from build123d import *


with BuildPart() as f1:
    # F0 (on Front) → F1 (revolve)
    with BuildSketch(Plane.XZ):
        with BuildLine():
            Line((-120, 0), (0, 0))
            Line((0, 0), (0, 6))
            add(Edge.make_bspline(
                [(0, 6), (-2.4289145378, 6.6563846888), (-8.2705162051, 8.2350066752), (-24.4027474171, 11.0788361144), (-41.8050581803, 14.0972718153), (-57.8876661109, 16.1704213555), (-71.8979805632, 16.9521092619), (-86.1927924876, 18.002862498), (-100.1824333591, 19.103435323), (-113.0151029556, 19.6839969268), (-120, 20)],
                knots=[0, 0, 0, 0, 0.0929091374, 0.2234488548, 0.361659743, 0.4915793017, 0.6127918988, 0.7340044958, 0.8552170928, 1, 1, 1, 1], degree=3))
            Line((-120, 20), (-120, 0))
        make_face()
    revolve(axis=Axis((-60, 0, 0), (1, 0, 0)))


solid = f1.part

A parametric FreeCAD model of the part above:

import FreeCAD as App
import Part
import Sketcher

doc = App.newDocument("Part")
body = doc.addObject("PartDesign::Body", "Body")

sketch1 = body.newObject("Sketcher::SketchObject", "Sketch")
sketch1.AttachmentSupport = (doc.getObject("XZ_Plane"), [""])
sketch1.MapMode = "FlatFace"
sketch1.addGeometry([
    Part.LineSegment(App.Vector(-120, 0, 0), App.Vector(0, 0, 0)),
    Part.LineSegment(App.Vector(0, 0, 0), App.Vector(0, 6, 0)),
    Part.BSplineCurve([App.Vector(0, 6, 0), App.Vector(-2.428915, 6.656385, 0), App.Vector(-8.270516, 8.235007, 0), App.Vector(-24.402747, 11.078836, 0), App.Vector(-41.805058, 14.097272, 0), App.Vector(-57.887666, 16.170421, 0), App.Vector(-71.897981, 16.952109, 0), App.Vector(-86.192792, 18.002862, 0), App.Vector(-100.182433, 19.103435, 0), App.Vector(-113.015103, 19.683997, 0), App.Vector(-120, 20, 0)], [4, 1, 1, 1, 1, 1, 1, 1, 4], [0, 0.092909137, 0.223448855, 0.361659743, 0.491579302, 0.612791899, 0.734004496, 0.855217093, 1], False, 3, [1, 1, 1, 1, 1, 1, 1, 1, 1, 1, 1], False),
    Part.LineSegment(App.Vector(-120, 20, 0), App.Vector(-120, 0, 0)),
], False)
sketch1.addConstraint([
    Sketcher.Constraint("Block", 2),
    Sketcher.Constraint("Coincident", 0, 2, 1, 1),
    Sketcher.Constraint("Coincident", 1, 2, 2, 1),
    Sketcher.Constraint("Coincident", 2, 2, 3, 1),
    Sketcher.Constraint("Coincident", 3, 2, 0, 1),
    Sketcher.Constraint("Horizontal", 0),
    Sketcher.Constraint("Vertical", 1),
    Sketcher.Constraint("Vertical", 3),
    Sketcher.Constraint("PointOnObject", 3, 2, -1),
])
revolution = body.newObject("PartDesign::Revolution", "Revolution")
revolution.Profile = sketch1
revolution.ReferenceAxis = (sketch1, ["H_Axis"])
revolution.Angle = 360

doc.recompute()
